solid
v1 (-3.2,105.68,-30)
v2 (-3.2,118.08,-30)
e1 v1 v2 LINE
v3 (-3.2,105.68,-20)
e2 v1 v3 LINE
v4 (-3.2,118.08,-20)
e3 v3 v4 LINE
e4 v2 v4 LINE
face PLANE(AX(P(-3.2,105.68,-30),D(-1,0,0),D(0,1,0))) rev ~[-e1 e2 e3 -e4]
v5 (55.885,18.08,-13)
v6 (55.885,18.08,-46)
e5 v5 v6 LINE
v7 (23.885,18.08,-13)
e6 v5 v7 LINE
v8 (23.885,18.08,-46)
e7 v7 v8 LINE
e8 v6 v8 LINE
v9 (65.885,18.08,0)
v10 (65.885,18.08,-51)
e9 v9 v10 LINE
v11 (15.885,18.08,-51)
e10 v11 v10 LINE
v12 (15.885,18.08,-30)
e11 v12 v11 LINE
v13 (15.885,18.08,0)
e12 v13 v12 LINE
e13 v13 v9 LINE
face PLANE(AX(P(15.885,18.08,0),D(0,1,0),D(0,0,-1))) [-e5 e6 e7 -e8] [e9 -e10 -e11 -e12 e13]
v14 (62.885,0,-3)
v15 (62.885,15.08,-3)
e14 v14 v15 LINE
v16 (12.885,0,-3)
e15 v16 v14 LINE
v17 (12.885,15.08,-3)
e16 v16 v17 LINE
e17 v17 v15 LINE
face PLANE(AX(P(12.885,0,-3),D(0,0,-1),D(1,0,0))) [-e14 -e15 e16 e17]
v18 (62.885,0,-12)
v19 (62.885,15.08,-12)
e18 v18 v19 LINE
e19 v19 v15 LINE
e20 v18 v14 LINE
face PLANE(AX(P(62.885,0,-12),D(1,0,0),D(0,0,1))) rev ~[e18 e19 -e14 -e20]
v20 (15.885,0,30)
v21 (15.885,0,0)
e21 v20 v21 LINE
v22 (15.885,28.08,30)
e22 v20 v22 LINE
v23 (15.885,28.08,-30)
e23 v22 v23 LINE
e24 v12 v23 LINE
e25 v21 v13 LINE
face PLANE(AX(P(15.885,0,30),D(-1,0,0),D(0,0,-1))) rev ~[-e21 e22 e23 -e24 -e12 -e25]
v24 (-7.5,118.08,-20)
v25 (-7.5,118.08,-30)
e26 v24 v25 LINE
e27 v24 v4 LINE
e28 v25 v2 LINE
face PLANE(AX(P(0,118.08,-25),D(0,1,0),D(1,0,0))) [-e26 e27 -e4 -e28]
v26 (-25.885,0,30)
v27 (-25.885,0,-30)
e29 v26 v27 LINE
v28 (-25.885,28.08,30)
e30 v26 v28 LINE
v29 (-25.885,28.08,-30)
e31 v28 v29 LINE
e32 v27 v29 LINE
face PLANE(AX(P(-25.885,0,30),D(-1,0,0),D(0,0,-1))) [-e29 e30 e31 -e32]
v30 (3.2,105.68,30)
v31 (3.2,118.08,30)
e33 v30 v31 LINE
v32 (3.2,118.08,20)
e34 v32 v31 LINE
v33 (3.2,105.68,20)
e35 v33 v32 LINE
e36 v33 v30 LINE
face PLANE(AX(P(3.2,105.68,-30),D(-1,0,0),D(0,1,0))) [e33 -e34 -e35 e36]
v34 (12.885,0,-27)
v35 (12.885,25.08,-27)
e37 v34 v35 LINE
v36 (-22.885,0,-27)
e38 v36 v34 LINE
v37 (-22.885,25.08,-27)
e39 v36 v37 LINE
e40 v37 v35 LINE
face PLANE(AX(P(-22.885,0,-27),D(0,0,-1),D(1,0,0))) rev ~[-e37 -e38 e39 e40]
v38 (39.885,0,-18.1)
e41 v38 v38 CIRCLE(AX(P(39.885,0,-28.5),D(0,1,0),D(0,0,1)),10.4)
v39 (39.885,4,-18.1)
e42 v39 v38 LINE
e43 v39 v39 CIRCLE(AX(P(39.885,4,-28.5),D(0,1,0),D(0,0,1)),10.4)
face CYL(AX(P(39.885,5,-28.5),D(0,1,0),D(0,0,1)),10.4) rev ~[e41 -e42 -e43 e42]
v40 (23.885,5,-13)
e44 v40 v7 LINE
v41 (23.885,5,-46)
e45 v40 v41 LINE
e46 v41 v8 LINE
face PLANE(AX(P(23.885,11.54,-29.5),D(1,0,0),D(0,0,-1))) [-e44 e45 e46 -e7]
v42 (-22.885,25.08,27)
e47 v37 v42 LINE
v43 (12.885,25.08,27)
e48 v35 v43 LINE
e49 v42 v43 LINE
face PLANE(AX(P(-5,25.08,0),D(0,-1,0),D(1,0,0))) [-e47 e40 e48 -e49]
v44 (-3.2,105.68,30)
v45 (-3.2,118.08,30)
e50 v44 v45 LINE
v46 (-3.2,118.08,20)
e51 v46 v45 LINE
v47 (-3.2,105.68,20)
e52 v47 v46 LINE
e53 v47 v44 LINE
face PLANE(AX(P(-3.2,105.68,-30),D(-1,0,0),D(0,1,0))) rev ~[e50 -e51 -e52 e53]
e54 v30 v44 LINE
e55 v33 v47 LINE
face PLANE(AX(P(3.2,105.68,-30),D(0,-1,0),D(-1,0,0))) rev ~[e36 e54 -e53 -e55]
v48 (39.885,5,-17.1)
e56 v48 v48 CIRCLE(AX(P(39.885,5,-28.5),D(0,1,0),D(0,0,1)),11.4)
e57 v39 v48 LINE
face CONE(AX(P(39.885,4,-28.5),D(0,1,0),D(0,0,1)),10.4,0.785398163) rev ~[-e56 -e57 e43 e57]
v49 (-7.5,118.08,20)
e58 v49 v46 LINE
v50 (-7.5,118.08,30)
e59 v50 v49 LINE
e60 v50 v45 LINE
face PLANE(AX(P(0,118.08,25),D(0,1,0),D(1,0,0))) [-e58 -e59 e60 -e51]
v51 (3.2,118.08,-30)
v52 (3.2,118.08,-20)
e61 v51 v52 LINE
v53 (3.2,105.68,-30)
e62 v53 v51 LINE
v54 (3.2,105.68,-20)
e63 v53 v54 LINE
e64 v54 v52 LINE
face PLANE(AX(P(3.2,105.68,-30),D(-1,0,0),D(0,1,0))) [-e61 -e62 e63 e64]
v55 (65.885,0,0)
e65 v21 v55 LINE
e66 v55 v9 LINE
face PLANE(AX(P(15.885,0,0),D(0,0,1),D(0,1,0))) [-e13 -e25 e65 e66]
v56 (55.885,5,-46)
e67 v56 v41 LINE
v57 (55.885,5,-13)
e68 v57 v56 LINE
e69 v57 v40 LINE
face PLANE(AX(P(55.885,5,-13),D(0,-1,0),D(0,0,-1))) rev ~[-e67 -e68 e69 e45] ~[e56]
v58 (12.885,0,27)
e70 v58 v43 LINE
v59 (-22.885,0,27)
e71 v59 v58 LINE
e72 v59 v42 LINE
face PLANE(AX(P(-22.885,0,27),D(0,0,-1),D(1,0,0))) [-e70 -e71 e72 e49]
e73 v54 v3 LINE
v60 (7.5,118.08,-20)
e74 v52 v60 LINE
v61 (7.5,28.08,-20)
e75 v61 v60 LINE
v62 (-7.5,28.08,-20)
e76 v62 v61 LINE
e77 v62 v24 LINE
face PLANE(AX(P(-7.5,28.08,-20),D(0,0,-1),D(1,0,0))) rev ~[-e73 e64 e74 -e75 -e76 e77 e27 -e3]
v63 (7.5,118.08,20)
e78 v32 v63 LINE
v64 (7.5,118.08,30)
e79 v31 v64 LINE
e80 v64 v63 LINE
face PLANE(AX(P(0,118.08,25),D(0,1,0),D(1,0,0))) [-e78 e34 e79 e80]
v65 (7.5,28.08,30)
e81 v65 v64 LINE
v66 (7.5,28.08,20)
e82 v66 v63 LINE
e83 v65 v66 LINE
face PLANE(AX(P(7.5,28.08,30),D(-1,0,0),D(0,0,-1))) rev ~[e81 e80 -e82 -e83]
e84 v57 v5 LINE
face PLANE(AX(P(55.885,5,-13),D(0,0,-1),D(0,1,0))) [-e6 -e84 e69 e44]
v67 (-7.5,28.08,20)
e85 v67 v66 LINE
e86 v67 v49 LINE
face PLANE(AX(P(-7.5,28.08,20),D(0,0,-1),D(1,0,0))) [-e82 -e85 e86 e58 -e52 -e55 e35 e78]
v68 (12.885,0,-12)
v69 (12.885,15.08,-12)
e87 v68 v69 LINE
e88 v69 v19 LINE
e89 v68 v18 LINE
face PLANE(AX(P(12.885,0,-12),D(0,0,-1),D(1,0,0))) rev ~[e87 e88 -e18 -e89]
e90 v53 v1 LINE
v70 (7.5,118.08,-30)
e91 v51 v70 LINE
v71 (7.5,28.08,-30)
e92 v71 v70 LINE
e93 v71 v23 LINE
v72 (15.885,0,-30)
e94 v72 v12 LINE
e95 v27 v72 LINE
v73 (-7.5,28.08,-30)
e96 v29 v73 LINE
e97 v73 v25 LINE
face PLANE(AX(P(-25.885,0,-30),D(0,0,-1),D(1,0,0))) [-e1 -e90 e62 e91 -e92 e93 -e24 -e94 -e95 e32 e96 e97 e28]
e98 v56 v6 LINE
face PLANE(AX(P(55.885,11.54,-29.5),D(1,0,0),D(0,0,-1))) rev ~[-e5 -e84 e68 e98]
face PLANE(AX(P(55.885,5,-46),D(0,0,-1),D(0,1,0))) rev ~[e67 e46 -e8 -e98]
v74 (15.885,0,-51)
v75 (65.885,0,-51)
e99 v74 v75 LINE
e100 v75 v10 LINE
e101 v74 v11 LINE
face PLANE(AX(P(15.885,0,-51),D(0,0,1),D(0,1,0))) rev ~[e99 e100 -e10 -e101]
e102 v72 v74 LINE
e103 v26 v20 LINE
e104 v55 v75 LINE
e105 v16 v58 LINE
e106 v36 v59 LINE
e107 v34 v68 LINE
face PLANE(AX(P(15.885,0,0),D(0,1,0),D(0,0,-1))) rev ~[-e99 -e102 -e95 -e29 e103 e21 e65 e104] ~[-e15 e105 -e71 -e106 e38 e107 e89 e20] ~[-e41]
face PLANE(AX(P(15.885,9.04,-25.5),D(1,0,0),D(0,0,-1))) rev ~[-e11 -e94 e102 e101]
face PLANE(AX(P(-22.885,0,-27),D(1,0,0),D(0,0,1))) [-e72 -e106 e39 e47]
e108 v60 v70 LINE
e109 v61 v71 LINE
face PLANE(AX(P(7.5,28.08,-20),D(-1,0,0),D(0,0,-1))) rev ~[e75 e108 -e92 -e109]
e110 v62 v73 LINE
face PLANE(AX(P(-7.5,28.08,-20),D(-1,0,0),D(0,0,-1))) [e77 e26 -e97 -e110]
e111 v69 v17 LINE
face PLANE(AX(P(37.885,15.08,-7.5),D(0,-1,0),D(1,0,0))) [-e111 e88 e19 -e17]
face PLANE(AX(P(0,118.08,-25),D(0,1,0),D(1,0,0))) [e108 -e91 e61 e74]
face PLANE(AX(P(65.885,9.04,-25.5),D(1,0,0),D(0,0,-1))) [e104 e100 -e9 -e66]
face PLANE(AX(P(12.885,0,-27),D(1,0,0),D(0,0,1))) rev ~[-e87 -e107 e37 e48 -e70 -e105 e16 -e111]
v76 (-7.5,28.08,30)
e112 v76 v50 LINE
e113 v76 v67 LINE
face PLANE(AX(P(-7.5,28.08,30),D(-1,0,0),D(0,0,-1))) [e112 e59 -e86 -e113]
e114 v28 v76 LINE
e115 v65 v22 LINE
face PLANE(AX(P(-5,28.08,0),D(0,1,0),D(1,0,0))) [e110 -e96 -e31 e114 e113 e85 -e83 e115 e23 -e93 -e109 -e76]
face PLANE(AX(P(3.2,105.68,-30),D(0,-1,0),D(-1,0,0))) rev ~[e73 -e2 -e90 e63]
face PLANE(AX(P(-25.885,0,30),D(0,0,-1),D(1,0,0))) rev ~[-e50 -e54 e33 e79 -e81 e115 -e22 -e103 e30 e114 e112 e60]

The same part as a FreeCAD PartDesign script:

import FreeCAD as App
import Part
import Sketcher
from FreeCAD import Vector


def edges_at(feature, points):
    """Names of the edges that pass closest to the given points."""
    edges = feature.Shape.Edges
    near = lambda p: min(range(len(edges)), key=lambda i: edges[i].distToShape(Part.Vertex(*p))[0])
    return sorted({f"Edge{near(p) + 1}" for p in points})


def add_polygon(sketch, points):
    """Adds a closed chain of lines whose ends are joined by coincident constraints."""
    first, n = sketch.GeometryCount, len(points)
    for a, b in zip(points, points[1:] + points[:1]):
        sketch.addGeometry(Part.LineSegment(App.Vector(*a, 0), App.Vector(*b, 0)), False)
    for i in range(n):
        sketch.addConstraint(Sketcher.Constraint("Coincident", first + i, 2, first + (i + 1) % n, 1))

doc = App.newDocument("Part")
body = doc.addObject("PartDesign::Body", "Body")

# Sketch on XZ plane
sketch1 = body.newObject("Sketcher::SketchObject", "Sketch")
sketch1.AttachmentSupport = (doc.getObject("XZ_Plane"), [""])
sketch1.MapMode = "FlatFace"
add_polygon(sketch1, [(-26, -30), (-26, 30), (16, 30), (16, -30)])  # lines 0-3
sketch1.addConstraint(Sketcher.Constraint("Vertical", 0))
sketch1.addConstraint(Sketcher.Constraint("Horizontal", 1))
sketch1.addConstraint(Sketcher.Constraint("Vertical", 2))
sketch1.addConstraint(Sketcher.Constraint("Horizontal", 3))
sketch1.addConstraint(Sketcher.Constraint("DistanceY", 0, 1, 0, 2, 60.0))
sketch1.addConstraint(Sketcher.Constraint("DistanceY", -1, 1, 0, 2, 30.0))
sketch1.addConstraint(Sketcher.Constraint("DistanceX", 1, 1, 1, 2, 41.77))
sketch1.addConstraint(Sketcher.Constraint("DistanceX", 0, 2, -1, 1, 25.885))
pad1 = body.newObject("PartDesign::Pad", "Pad")
pad1.Profile = sketch1
pad1.Length = 28.08
pad1.Reversed = True

# Sketch on XZ plane
sketch2 = body.newObject("Sketcher::SketchObject", "Sketch001")
sketch2.AttachmentSupport = (doc.getObject("XZ_Plane"), [""])
sketch2.MapMode = "FlatFace"
sketch2.AttachmentOffset = App.Placement(Vector(0, 0, -28.08), App.Rotation())
add_polygon(sketch2, [(-8, 20), (-8, 30), (8, 30), (8, 20)])  # lines 0-3
add_polygon(sketch2, [(-8, -30), (-8, -20), (8, -20), (8, -30)])  # lines 4-7
sketch2.addConstraint(Sketcher.Constraint("Vertical", 0))
sketch2.addConstraint(Sketcher.Constraint("Horizontal", 1))
sketch2.addConstraint(Sketcher.Constraint("Vertical", 2))
sketch2.addConstraint(Sketcher.Constraint("Horizontal", 3))
sketch2.addConstraint(Sketcher.Constraint("Vertical", 4))
sketch2.addConstraint(Sketcher.Constraint("Horizontal", 5))
sketch2.addConstraint(Sketcher.Constraint("Vertical", 6))
sketch2.addConstraint(Sketcher.Constraint("Horizontal", 7))
sketch2.addConstraint(Sketcher.Constraint("Symmetric", 2, 2, 4, 2, -1, 1))
sketch2.addConstraint(Sketcher.Constraint("Symmetric", 0, 2, 6, 2, -1, 1))
sketch2.addConstraint(Sketcher.Constraint("Vertical", 3, 2, 4, 2))
sketch2.addConstraint(Sketcher.Constraint("DistanceX", 1, 1, 1, 2, 15.0))
sketch2.addConstraint(Sketcher.Constraint("DistanceY", 0, 1, 0, 2, 10.0))
sketch2.addConstraint(Sketcher.Constraint("DistanceY", -1, 1, 0, 2, 30.0))
pad2 = body.newObject("PartDesign::Pad", "Pad001")
pad2.Profile = sketch2
pad2.Length = 90
pad2.Reversed = True

# Sketch on XY plane
sketch3 = body.newObject("Sketcher::SketchObject", "Sketch002")
sketch3.AttachmentSupport = (doc.getObject("XY_Plane"), [""])
sketch3.MapMode = "FlatFace"
sketch3.AttachmentOffset = App.Placement(Vector(0, 0, -30), App.Rotation())
add_polygon(sketch3, [(3, 118), (3, 106), (-3, 106), (-3, 118)])  # lines 0-3
sketch3.addConstraint(Sketcher.Constraint("Vertical", 0))
sketch3.addConstraint(Sketcher.Constraint("Horizontal", 1))
sketch3.addConstraint(Sketcher.Constraint("Vertical", 2))
sketch3.addConstraint(Sketcher.Constraint("Horizontal", 3))
sketch3.addConstraint(Sketcher.Constraint("DistanceX", 1, 2, 1, 1, 6.4))
sketch3.addConstraint(Sketcher.Constraint("DistanceY", 0, 2, 0, 1, 12.4))
sketch3.addConstraint(Sketcher.Constraint("DistanceX", -1, 1, 0, 2, 3.2))
sketch3.addConstraint(Sketcher.Constraint("DistanceY", -1, 1, 0, 2, 105.68))
pocket1 = body.newObject("PartDesign::Pocket", "Pocket")
pocket1.Profile = sketch3
pocket1.Type = "ThroughAll"
pocket1.Reversed = True

# Sketch on YZ plane
sketch4 = body.newObject("Sketcher::SketchObject", "Sketch003")
sketch4.AttachmentSupport = (doc.getObject("YZ_Plane"), [""])
sketch4.MapMode = "FlatFace"
sketch4.AttachmentOffset = App.Placement(Vector(0, 0, 15.885), App.Rotation())
add_polygon(sketch4, [(18, 0), (0, 0), (0, -51), (18, -51)])  # lines 0-3
sketch4.addConstraint(Sketcher.Constraint("Horizontal", 0))
sketch4.addConstraint(Sketcher.Constraint("Vertical", 1))
sketch4.addConstraint(Sketcher.Constraint("Horizontal", 2))
sketch4.addConstraint(Sketcher.Constraint("Vertical", 3))
sketch4.addConstraint(Sketcher.Constraint("Coincident", 0, 2, -1, 1))
sketch4.addConstraint(Sketcher.Constraint("DistanceY", 1, 2, 1, 1, 51.0))
sketch4.addConstraint(Sketcher.Constraint("DistanceX", 0, 2, 0, 1, 18.08))
pad3 = body.newObject("PartDesign::Pad", "Pad002")
pad3.Profile = sketch4
pad3.Length = 50

# Sketch on YZ plane
sketch5 = body.newObject("Sketcher::SketchObject", "Sketch004")
sketch5.AttachmentSupport = (doc.getObject("YZ_Plane"), [""])
sketch5.MapMode = "FlatFace"
sketch5.AttachmentOffset = App.Placement(Vector(0, 0, 55.885), App.Rotation())
add_polygon(sketch5, [(18, -13), (5, -13), (5, -46), (18, -46)])  # lines 0-3
sketch5.addConstraint(Sketcher.Constraint("Horizontal", 0))
sketch5.addConstraint(Sketcher.Constraint("Vertical", 1))
sketch5.addConstraint(Sketcher.Constraint("Horizontal", 2))
sketch5.addConstraint(Sketcher.Constraint("Vertical", 3))
sketch5.addConstraint(Sketcher.Constraint("DistanceY", 1, 2, 1, 1, 33.0))
sketch5.addConstraint(Sketcher.Constraint("DistanceX", -1, 1, 0, 2, 5.0))
sketch5.addConstraint(Sketcher.Constraint("DistanceY", 0, 2, -1, 1, 13.0))
sketch5.addConstraint(Sketcher.Constraint("DistanceX", 0, 2, 0, 1, 13.08))
pocket2 = body.newObject("PartDesign::Pocket", "Pocket001")
pocket2.Profile = sketch5
pocket2.Length = 32

# Sketch on XZ plane
sketch6 = body.newObject("Sketcher::SketchObject", "Sketch005")
sketch6.AttachmentSupport = (doc.getObject("XZ_Plane"), [""])
sketch6.MapMode = "FlatFace"
add_polygon(sketch6, [(-23, 27), (-23, -27), (13, -27), (13, 27)])  # lines 0-3
sketch6.addConstraint(Sketcher.Constraint("Vertical", 0))
sketch6.addConstraint(Sketcher.Constraint("Horizontal", 1))
sketch6.addConstraint(Sketcher.Constraint("Vertical", 2))
sketch6.addConstraint(Sketcher.Constraint("Horizontal", 3))
sketch6.addConstraint(Sketcher.Constraint("DistanceY", 0, 2, 0, 1, 54.0))
sketch6.addConstraint(Sketcher.Constraint("DistanceY", 0, 2, -1, 1, 27.0))
sketch6.addConstraint(Sketcher.Constraint("DistanceX", 1, 1, 1, 2, 35.77))
sketch6.addConstraint(Sketcher.Constraint("DistanceX", 0, 2, -1, 1, 22.885))
pocket3 = body.newObject("PartDesign::Pocket", "Pocket002")
pocket3.Profile = sketch6
pocket3.Length = 25.08

# Sketch on XZ plane
sketch7 = body.newObject("Sketcher::SketchObject", "Sketch006")
sketch7.AttachmentSupport = (doc.getObject("XZ_Plane"), [""])
sketch7.MapMode = "FlatFace"
add_polygon(sketch7, [(13, -3), (13, -12), (63, -12), (63, -3)])  # lines 0-3
sketch7.addConstraint(Sketcher.Constraint("Vertical", 0))
sketch7.addConstraint(Sketcher.Constraint("Horizontal", 1))
sketch7.addConstraint(Sketcher.Constraint("Vertical", 2))
sketch7.addConstraint(Sketcher.Constraint("Horizontal", 3))
sketch7.addConstraint(Sketcher.Constraint("DistanceX", 1, 1, 1, 2, 50.0))
sketch7.addConstraint(Sketcher.Constraint("DistanceY", 0, 2, 0, 1, 9.0))
sketch7.addConstraint(Sketcher.Constraint("DistanceY", 0, 2, -1, 1, 12.0))
sketch7.addConstraint(Sketcher.Constraint("DistanceX", -1, 1, 0, 2, 12.885))
pocket4 = body.newObject("PartDesign::Pocket", "Pocket003")
pocket4.Profile = sketch7
pocket4.Length = 15.08

# Sketch on XZ plane
sketch8 = body.newObject("Sketcher::SketchObject", "Sketch007")
sketch8.AttachmentSupport = (doc.getObject("XZ_Plane"), [""])
sketch8.MapMode = "FlatFace"
sketch8.AttachmentOffset = App.Placement(Vector(0, 0, -5), App.Rotation())
sketch8.addGeometry(Part.Circle(Vector(40, -28, 0), Vector(0, 0, 1), 10), False)
sketch8.addConstraint(Sketcher.Constraint("Diameter", 0, 20.8))
sketch8.addConstraint(Sketcher.Constraint("DistanceY", 0, 3, -1, 1, 28.5))
sketch8.addConstraint(Sketcher.Constraint("DistanceX", -1, 1, 0, 3, 39.885))
pocket5 = body.newObject("PartDesign::Pocket", "Pocket004")
pocket5.Profile = sketch8
pocket5.Length = 10
pocket5.Reversed = True
doc.recompute()

chamfer = body.newObject("PartDesign::Chamfer", "Chamfer")
chamfer.Base = (pocket5, edges_at(pocket5, [(39.885, 5, -38.9)]))
chamfer.Size = 1

doc.recompute()
